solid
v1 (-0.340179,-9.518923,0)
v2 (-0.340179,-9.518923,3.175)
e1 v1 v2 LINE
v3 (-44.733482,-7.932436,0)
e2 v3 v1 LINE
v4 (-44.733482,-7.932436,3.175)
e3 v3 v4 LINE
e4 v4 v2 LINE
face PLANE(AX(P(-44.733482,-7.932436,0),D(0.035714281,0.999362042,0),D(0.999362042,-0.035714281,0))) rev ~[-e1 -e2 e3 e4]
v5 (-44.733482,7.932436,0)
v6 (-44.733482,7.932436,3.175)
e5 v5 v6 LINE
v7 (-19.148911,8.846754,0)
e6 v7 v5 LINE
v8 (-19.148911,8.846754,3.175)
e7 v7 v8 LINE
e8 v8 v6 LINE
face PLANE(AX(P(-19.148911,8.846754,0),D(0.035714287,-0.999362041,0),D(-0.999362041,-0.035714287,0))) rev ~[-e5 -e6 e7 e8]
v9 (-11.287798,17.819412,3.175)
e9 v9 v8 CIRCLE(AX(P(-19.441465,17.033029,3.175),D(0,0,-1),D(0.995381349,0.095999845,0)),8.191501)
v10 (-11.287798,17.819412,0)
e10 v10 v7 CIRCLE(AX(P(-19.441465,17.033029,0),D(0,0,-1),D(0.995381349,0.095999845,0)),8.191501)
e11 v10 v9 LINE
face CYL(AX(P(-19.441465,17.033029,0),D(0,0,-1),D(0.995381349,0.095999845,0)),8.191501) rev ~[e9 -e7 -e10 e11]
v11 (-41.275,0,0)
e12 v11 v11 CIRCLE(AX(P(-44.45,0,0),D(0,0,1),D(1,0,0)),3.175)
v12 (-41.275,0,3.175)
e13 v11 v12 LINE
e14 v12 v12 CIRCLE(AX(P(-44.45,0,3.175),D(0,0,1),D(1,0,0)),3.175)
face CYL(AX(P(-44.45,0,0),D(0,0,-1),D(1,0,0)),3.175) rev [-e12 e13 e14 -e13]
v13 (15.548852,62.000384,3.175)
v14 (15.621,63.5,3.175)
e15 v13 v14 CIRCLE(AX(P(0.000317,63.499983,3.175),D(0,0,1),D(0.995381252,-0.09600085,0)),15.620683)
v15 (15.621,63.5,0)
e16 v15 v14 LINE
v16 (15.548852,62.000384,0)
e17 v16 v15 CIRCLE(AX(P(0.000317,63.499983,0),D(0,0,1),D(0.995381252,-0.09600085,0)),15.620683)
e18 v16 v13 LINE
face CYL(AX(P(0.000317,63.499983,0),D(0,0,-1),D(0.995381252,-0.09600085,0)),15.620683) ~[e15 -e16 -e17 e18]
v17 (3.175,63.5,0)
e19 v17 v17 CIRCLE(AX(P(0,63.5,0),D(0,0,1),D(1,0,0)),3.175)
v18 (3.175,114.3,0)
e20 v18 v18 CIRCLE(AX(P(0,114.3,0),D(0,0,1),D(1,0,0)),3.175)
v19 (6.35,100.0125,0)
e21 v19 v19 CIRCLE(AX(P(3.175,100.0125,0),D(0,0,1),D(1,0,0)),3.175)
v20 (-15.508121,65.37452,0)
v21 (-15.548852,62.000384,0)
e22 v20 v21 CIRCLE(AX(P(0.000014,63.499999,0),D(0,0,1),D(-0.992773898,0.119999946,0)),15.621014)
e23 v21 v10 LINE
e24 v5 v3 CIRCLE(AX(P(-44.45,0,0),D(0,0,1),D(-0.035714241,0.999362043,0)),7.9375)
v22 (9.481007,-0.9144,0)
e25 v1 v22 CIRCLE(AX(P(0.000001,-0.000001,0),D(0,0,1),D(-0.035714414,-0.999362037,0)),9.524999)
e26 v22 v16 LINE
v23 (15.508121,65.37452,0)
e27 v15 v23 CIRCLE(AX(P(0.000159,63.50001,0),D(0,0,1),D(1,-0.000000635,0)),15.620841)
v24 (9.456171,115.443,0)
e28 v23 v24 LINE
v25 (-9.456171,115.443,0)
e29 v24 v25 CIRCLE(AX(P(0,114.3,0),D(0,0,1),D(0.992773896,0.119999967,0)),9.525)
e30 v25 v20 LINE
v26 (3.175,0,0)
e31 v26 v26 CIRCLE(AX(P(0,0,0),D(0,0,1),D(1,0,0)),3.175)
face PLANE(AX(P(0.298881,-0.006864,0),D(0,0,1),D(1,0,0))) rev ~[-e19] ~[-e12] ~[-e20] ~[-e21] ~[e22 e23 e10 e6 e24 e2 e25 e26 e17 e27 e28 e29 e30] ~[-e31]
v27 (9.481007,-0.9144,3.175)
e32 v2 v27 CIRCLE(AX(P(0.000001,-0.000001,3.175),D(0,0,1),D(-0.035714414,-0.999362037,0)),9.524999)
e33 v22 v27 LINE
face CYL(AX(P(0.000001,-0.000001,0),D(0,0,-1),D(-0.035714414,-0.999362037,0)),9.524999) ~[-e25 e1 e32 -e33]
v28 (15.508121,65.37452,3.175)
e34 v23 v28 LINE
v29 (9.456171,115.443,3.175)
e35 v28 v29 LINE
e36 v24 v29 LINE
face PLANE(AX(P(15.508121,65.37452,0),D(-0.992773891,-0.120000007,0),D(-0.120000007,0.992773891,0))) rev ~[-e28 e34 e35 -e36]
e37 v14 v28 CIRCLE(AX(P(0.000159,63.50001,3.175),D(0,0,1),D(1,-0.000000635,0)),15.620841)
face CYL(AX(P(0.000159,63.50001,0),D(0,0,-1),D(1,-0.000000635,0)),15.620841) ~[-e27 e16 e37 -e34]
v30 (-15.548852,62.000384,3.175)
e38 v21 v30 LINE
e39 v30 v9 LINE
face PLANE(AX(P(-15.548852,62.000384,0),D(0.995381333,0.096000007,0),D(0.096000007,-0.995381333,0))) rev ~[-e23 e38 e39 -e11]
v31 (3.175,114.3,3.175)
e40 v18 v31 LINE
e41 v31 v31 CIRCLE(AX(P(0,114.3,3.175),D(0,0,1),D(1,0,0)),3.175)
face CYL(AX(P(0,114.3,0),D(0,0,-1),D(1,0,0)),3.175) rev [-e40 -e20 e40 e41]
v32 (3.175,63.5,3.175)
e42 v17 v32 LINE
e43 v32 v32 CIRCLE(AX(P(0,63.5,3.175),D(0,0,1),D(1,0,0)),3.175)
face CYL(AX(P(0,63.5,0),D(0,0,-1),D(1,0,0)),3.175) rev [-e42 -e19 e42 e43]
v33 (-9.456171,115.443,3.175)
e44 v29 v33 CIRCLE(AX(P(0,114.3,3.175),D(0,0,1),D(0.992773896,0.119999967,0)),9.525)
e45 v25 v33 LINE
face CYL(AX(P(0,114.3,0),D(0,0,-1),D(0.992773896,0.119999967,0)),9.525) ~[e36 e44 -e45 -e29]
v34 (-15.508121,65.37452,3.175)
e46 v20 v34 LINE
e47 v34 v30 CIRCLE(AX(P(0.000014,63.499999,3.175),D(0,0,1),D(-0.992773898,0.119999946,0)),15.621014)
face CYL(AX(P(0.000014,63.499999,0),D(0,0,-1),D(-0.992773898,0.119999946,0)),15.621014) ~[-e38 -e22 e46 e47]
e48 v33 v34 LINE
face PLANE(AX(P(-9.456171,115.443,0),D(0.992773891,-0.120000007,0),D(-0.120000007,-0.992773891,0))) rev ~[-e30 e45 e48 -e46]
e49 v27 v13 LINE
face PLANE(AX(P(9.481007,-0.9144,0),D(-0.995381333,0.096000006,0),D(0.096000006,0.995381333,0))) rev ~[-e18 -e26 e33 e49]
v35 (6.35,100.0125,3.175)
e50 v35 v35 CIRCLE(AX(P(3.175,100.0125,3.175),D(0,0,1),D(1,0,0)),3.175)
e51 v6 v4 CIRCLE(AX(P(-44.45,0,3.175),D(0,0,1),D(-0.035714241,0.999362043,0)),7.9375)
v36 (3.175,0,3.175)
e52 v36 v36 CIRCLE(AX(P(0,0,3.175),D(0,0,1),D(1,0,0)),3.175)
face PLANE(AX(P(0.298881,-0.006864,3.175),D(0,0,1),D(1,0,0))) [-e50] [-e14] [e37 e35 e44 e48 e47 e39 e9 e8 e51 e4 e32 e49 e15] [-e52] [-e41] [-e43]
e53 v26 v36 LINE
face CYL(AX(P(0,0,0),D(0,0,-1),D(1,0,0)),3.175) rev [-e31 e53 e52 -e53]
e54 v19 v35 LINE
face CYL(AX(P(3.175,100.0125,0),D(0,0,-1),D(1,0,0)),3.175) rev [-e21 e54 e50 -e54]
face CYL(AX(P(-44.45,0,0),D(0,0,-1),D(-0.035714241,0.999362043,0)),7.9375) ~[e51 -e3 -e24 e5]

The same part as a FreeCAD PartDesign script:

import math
import FreeCAD as App
import Part
import Sketcher
Q = App.Units.Quantity

doc = App.newDocument("Part")
body = doc.addObject("PartDesign::Body", "Body")

# Sketch on XY plane
sketch1 = body.newObject("Sketcher::SketchObject", "Sketch")
sketch1.AttachmentSupport = (doc.getObject("XY_Plane"), [""])
sketch1.MapMode = "FlatFace"
sketch1.addGeometry(Part.ArcOfCircle(Part.Circle(App.Vector(0.000001, -0.000001, 0), App.Vector(0, 0, 1), 9.524999), math.radians(-92.04672), math.radians(-5.508876)), False)
sketch1.addGeometry(Part.LineSegment(App.Vector(9.481007, -0.9144, 0), App.Vector(15.548852, 62.000384, 0)), False)
sketch1.addGeometry(Part.ArcOfCircle(Part.Circle(App.Vector(0.000317, 63.499983, 0), App.Vector(0, 0, 1), 15.620683), math.radians(-5.508928), math.radians(0.000063)), False)
sketch1.addGeometry(Part.ArcOfCircle(Part.Circle(App.Vector(0.000159, 63.50001, 0), App.Vector(0, 0, 1), 15.620841), math.radians(-0.000036), math.radians(6.892137)), False)
sketch1.addGeometry(Part.LineSegment(App.Vector(15.508121, 65.37452, 0), App.Vector(9.456171, 115.443, 0)), False)
sketch1.addGeometry(Part.ArcOfCircle(Part.Circle(App.Vector(0, 114.3, 0), App.Vector(0, 0, 1), 9.525), math.radians(6.892101), math.radians(173.107899)), False)
sketch1.addGeometry(Part.LineSegment(App.Vector(-9.456171, 115.443, 0), App.Vector(-15.508121, 65.37452, 0)), False)
sketch1.addGeometry(Part.ArcOfCircle(Part.Circle(App.Vector(0.000014, 63.499999, 0), App.Vector(0, 0, 1), 15.621014), math.radians(173.107901), math.radians(185.508871)), False)
sketch1.addGeometry(Part.LineSegment(App.Vector(-15.548852, 62.000384, 0), App.Vector(-11.287798, 17.819412, 0)), False)
sketch1.addGeometry(Part.ArcOfCircle(Part.Circle(App.Vector(-19.441465, 17.033029, 0), App.Vector(0, 0, 1), 8.191501), math.radians(-87.953282), math.radians(5.50887)), False)
sketch1.addGeometry(Part.LineSegment(App.Vector(-19.148911, 8.846754, 0), App.Vector(-44.733482, 7.932436, 0)), False)
sketch1.addGeometry(Part.ArcOfCircle(Part.Circle(App.Vector(-44.45, 0, 0), App.Vector(0, 0, 1), 7.9375), math.radians(92.046711), math.radians(267.953289)), False)
sketch1.addGeometry(Part.LineSegment(App.Vector(-44.733482, -7.932436, 0), App.Vector(-0.340179, -9.518923, 0)), False)
sketch1.addGeometry(Part.Circle(App.Vector(-44.45, 0, 0), App.Vector(0, 0, 1), 3.175), False)
sketch1.addGeometry(Part.Circle(App.Vector(0, 0, 0), App.Vector(0, 0, 1), 3.175), False)
sketch1.addGeometry(Part.Circle(App.Vector(0, 63.5, 0), App.Vector(0, 0, 1), 3.175), False)
sketch1.addGeometry(Part.Circle(App.Vector(3.175, 100.0125, 0), App.Vector(0, 0, 1), 3.175), False)
sketch1.addGeometry(Part.Circle(App.Vector(0, 114.3, 0), App.Vector(0, 0, 1), 3.175), False)
sketch1.addConstraint(Sketcher.Constraint("Coincident", 0, 2, 1, 1))
sketch1.addConstraint(Sketcher.Constraint("Coincident", 1, 2, 2, 1))
sketch1.addConstraint(Sketcher.Constraint("Coincident", 2, 2, 3, 1))
sketch1.addConstraint(Sketcher.Constraint("Coincident", 3, 2, 4, 1))
sketch1.addConstraint(Sketcher.Constraint("Coincident", 4, 2, 5, 1))
sketch1.addConstraint(Sketcher.Constraint("Coincident", 5, 2, 6, 1))
sketch1.addConstraint(Sketcher.Constraint("Coincident", 6, 2, 7, 1))
sketch1.addConstraint(Sketcher.Constraint("Coincident", 7, 2, 8, 1))
sketch1.addConstraint(Sketcher.Constraint("Coincident", 8, 2, 9, 2))
sketch1.addConstraint(Sketcher.Constraint("Coincident", 9, 1, 10, 1))
sketch1.addConstraint(Sketcher.Constraint("Coincident", 10, 2, 11, 1))
sketch1.addConstraint(Sketcher.Constraint("Coincident", 11, 2, 12, 1))
sketch1.addConstraint(Sketcher.Constraint("Coincident", 12, 2, 0, 1))
sketch1.addConstraint(Sketcher.Constraint("Coincident", 0, 3, -1, 1))
sketch1.addConstraint(Sketcher.Constraint("Coincident", 14, 3, -1, 1))
sketch1.addConstraint(Sketcher.Constraint("Coincident", 13, 3, 11, 3))
sketch1.addConstraint(Sketcher.Constraint("Coincident", 17, 3, 5, 3))
sketch1.addConstraint(Sketcher.Constraint("PointOnObject", 5, 3, -2))
sketch1.addConstraint(Sketcher.Constraint("PointOnObject", 11, 3, -1))
sketch1.addConstraint(Sketcher.Constraint("PointOnObject", 15, 3, -2))
sketch1.addConstraint(Sketcher.Constraint("Diameter", 13, Q("0.25 in")))
sketch1.addConstraint(Sketcher.Constraint("Diameter", 14, Q("0.25 in")))
sketch1.addConstraint(Sketcher.Constraint("Diameter", 15, Q("0.25 in")))
sketch1.addConstraint(Sketcher.Constraint("Diameter", 16, Q("0.25 in")))
sketch1.addConstraint(Sketcher.Constraint("Diameter", 17, Q("0.25 in")))
sketch1.addConstraint(Sketcher.Constraint("Radius", 0, Q("0.375 in")))
sketch1.addConstraint(Sketcher.Constraint("Radius", 5, Q("0.375 in")))
sketch1.addConstraint(Sketcher.Constraint("Radius", 11, Q("0.3125 in")))
sketch1.addConstraint(Sketcher.Constraint("DistanceY", 7, 3, 5, 3, Q("2 in")))
sketch1.addConstraint(Sketcher.Constraint("DistanceY", 15, 3, 5, 3, Q("2 in")))
sketch1.addConstraint(Sketcher.Constraint("DistanceY", -1, 1, 5, 3, Q("4.5 in")))
sketch1.addConstraint(Sketcher.Constraint("DistanceY", -1, 1, 2, 2, Q("2.5 in")))
sketch1.addConstraint(Sketcher.Constraint("Radius", 9, Q("0.3225 in")))
sketch1.addConstraint(Sketcher.Constraint("DistanceX", 11, 3, -1, 1, Q("1.75 in")))
sketch1.addConstraint(Sketcher.Constraint("DistanceX", -1, 1, 16, 3, Q("0.125 in")))
sketch1.addConstraint(Sketcher.Constraint("DistanceY", -1, 1, 16, 3, Q("3.9375 in")))
sketch1.addConstraint(Sketcher.Constraint("DistanceY", 0, 2, -1, 1, Q("0.036 in")))
sketch1.addConstraint(Sketcher.Constraint("DistanceX", -1, 1, 2, 2, Q("0.615 in")))
sketch1.addConstraint(Sketcher.Constraint("DistanceY", -1, 1, 4, 2, Q("4.545 in")))
sketch1.addConstraint(Sketcher.Constraint("DistanceY", -1, 1, 5, 2, Q("4.545 in")))
sketch1.addConstraint(Sketcher.Constraint("Radius", 3, 15.620841))
sketch1.addConstraint(Sketcher.Constraint("DistanceY", -1, 1, 3, 2, Q("2.5738 in")))
sketch1.addConstraint(Sketcher.Constraint("DistanceY", -1, 1, 6, 2, Q("2.5738 in")))
sketch1.addConstraint(Sketcher.Constraint("Radius", 2, 15.620683))
sketch1.addConstraint(Sketcher.Constraint("Radius", 7, 15.621014))
sketch1.addConstraint(Sketcher.Constraint("DistanceY", 1, 2, 2, 3, 1.499599))
sketch1.addConstraint(Sketcher.Constraint("DistanceY", 7, 2, 2, 3, 1.499599))
sketch1.addConstraint(Sketcher.Constraint("DistanceX", 8, 2, 0, 3, 11.287799))
sketch1.addConstraint(Sketcher.Constraint("DistanceY", -1, 1, 3, 3, 63.50001))
sketch1.addConstraint(Sketcher.Constraint("DistanceY", -1, 1, 9, 3, 17.033029))
sketch1.addConstraint(Sketcher.Constraint("DistanceX", 6, 2, -1, 1, 15.508121))
sketch1.addConstraint(Sketcher.Constraint("DistanceY", -1, 1, 8, 2, 17.819412))
sketch1.addConstraint(Sketcher.Constraint("DistanceX", 9, 1, -1, 1, 19.148911))
sketch1.addConstraint(Sketcher.Constraint("DistanceX", 12, 2, -1, 1, 0.340179))
sketch1.addConstraint(Sketcher.Constraint("DistanceX", 7, 2, 6, 2, 0.040731))
sketch1.addConstraint(Sketcher.Constraint("DistanceX", 10, 2, 11, 3, 0.283482))
sketch1.addConstraint(Sketcher.Constraint("DistanceX", 11, 2, 11, 3, 0.283482))
pad1 = body.newObject("PartDesign::Pad", "Pad")
pad1.Profile = sketch1
pad1.Length = Q("0.125 in")

doc.recompute()
